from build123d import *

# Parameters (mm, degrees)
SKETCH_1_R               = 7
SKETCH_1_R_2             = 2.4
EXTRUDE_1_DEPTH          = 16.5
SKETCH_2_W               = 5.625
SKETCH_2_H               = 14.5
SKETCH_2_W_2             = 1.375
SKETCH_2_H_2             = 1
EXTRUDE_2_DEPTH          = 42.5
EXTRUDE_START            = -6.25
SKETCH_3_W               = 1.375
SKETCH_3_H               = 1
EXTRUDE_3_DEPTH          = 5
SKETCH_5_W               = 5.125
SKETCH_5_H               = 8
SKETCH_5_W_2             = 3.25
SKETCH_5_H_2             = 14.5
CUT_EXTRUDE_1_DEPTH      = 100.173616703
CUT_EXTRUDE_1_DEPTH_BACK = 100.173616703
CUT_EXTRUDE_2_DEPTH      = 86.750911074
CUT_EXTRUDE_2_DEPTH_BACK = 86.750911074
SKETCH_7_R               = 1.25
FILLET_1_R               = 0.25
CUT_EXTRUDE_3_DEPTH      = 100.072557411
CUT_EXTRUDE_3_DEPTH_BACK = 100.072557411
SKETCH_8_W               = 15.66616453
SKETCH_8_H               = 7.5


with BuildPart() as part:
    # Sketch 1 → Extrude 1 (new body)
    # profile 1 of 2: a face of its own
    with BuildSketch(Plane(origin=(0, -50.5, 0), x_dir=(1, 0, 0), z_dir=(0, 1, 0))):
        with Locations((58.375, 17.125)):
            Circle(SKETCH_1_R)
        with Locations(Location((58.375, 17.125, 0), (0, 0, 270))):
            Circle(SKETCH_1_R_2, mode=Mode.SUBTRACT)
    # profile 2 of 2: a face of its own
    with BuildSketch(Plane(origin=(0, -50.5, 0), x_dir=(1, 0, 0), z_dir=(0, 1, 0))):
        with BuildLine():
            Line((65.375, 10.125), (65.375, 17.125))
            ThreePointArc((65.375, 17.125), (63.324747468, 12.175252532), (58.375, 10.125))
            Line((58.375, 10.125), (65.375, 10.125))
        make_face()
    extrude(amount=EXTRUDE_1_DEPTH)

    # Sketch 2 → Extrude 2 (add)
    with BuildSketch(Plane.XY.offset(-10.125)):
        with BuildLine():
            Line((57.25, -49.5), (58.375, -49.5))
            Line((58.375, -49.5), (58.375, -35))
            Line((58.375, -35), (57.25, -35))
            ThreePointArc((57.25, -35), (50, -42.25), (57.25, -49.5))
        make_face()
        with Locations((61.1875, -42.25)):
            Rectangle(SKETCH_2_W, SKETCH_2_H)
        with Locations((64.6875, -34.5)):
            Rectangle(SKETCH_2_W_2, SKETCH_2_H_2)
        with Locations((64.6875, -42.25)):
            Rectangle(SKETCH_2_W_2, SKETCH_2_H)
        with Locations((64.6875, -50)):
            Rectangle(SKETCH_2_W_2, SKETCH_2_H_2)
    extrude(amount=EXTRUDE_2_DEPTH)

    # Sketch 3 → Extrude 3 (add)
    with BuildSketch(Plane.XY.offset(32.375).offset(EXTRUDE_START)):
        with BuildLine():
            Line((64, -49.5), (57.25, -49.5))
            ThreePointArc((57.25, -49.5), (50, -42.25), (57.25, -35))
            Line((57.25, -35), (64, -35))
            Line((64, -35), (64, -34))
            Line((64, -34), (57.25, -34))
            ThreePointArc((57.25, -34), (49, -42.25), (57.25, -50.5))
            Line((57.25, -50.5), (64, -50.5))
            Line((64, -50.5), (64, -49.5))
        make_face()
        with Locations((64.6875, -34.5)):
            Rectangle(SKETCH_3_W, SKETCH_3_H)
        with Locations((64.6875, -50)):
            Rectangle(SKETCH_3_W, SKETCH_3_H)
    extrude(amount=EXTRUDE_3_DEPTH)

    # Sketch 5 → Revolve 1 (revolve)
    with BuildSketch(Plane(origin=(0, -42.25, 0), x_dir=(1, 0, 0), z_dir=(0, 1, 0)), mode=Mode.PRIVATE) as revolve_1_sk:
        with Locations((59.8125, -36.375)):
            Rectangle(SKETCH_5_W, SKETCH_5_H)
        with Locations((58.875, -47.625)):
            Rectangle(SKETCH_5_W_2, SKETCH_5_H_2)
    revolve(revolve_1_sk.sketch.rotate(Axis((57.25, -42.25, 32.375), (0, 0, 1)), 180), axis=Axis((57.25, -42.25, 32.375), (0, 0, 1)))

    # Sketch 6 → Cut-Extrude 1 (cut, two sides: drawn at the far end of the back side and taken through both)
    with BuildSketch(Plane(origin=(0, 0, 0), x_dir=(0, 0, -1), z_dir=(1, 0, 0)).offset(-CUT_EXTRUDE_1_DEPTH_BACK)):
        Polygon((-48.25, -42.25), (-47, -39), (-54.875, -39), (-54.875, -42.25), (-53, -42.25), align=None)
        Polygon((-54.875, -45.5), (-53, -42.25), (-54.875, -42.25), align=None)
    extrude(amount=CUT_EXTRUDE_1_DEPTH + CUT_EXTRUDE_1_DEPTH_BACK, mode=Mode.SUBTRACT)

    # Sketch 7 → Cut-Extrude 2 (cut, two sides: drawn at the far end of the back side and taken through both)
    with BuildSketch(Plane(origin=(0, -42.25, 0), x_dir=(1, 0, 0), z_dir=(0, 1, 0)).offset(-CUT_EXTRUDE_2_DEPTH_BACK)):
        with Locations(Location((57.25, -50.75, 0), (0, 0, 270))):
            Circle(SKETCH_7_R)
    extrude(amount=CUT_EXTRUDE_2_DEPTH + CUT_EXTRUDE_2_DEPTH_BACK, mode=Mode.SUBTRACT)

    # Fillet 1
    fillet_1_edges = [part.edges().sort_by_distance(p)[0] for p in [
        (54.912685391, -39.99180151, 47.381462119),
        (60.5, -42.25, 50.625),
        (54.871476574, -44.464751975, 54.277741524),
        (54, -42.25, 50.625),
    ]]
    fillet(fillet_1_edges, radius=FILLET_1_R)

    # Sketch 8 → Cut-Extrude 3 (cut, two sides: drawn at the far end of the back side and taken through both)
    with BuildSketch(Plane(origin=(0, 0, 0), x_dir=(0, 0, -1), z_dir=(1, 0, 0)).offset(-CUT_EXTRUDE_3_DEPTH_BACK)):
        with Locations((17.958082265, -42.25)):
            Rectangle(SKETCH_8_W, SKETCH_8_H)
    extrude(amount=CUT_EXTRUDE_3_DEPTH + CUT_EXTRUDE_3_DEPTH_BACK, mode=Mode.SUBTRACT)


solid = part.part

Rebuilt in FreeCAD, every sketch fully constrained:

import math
import FreeCAD as App
import Part
import Sketcher

V = App.Vector


def edges_at(feature, points):
    """Names of the edges that pass closest to the given points."""
    edges = feature.Shape.Edges
    near = lambda p: min(range(len(edges)), key=lambda i: edges[i].distToShape(Part.Vertex(*p))[0])
    return sorted({f"Edge{near(p) + 1}" for p in points})


def add_polygon(sketch, points):
    """Adds a closed chain of lines whose ends are joined by coincident constraints."""
    first, n = sketch.GeometryCount, len(points)
    for a, b in zip(points, points[1:] + points[:1]):
        sketch.addGeometry(Part.LineSegment(App.Vector(*a, 0), App.Vector(*b, 0)), False)
    for i in range(n):
        sketch.addConstraint(Sketcher.Constraint("Coincident", first + i, 2, first + (i + 1) % n, 1))

doc = App.newDocument("Part")
body = doc.addObject("PartDesign::Body", "Body")

# Sketch on XZ plane
sketch1 = body.newObject("Sketcher::SketchObject", "Sketch")
sketch1.AttachmentSupport = (doc.getObject("XZ_Plane"), [""])
sketch1.MapMode = "FlatFace"
sketch1.AttachmentOffset = App.Placement(V(0, 0, 50.5), App.Rotation())
sketch1.addGeometry(Part.ArcOfCircle(Part.Circle(V(58.4, -17.1, 0), V(0, 0, 1), 7), math.radians(90), math.radians(360)), False)
sketch1.addGeometry(Part.LineSegment(V(58.4, -10.1, 0), V(65.4, -10.1, 0)), False)
sketch1.addGeometry(Part.LineSegment(V(65.4, -10.1, 0), V(65.4, -17.1, 0)), False)
sketch1.addGeometry(Part.Circle(V(58.4, -17.1, 0), V(0, 0, 1), 2.4), False)
sketch1.addConstraint(Sketcher.Constraint("Tangent", 0, 1, 1, 1))
sketch1.addConstraint(Sketcher.Constraint("Coincident", 1, 2, 2, 1))
sketch1.addConstraint(Sketcher.Constraint("Tangent", 2, 2, 0, 2))
sketch1.addConstraint(Sketcher.Constraint("Horizontal", 1))
sketch1.addConstraint(Sketcher.Constraint("Vertical", 2))
sketch1.addConstraint(Sketcher.Constraint("Coincident", 3, 3, 0, 3))
sketch1.addConstraint(Sketcher.Constraint("Radius", 0, 7.0))
sketch1.addConstraint(Sketcher.Constraint("Diameter", 3, 4.8))
sketch1.addConstraint(Sketcher.Constraint("DistanceX", -1, 1, 0, 3, 58.375))
sketch1.addConstraint(Sketcher.Constraint("DistanceY", 0, 3, -1, 1, 17.125))
pad1 = body.newObject("PartDesign::Pad", "Pad")
pad1.Profile = sketch1
pad1.Length = 16.5
pad1.Reversed = True

# Sketch on XY plane
sketch2 = body.newObject("Sketcher::SketchObject", "Sketch001")
sketch2.AttachmentSupport = (doc.getObject("XY_Plane"), [""])
sketch2.MapMode = "FlatFace"
sketch2.AttachmentOffset = App.Placement(V(0, 0, -10.125), App.Rotation())
sketch2.addGeometry(Part.LineSegment(V(57.2, -49.5, 0), V(64, -49.5, 0)), False)
sketch2.addGeometry(Part.LineSegment(V(64, -49.5, 0), V(64, -50.5, 0)), False)
sketch2.addGeometry(Part.LineSegment(V(64, -50.5, 0), V(65.4, -50.5, 0)), False)
sketch2.addGeometry(Part.LineSegment(V(65.4, -50.5, 0), V(65.4, -34, 0)), False)
sketch2.addGeometry(Part.LineSegment(V(65.4, -34, 0), V(64, -34, 0)), False)
sketch2.addGeometry(Part.LineSegment(V(64, -34, 0), V(64, -35, 0)), False)
sketch2.addGeometry(Part.LineSegment(V(64, -35, 0), V(57.2, -35, 0)), False)
sketch2.addGeometry(Part.ArcOfCircle(Part.Circle(V(57.2, -42.2, 0), V(0, 0, 1), 7.2), math.radians(90), math.radians(270)), False)
sketch2.addConstraint(Sketcher.Constraint("Coincident", 0, 2, 1, 1))
sketch2.addConstraint(Sketcher.Constraint("Coincident", 1, 2, 2, 1))
sketch2.addConstraint(Sketcher.Constraint("Coincident", 2, 2, 3, 1))
sketch2.addConstraint(Sketcher.Constraint("Coincident", 3, 2, 4, 1))
sketch2.addConstraint(Sketcher.Constraint("Coincident", 4, 2, 5, 1))
sketch2.addConstraint(Sketcher.Constraint("Coincident", 5, 2, 6, 1))
sketch2.addConstraint(Sketcher.Constraint("Tangent", 6, 2, 7, 1))
sketch2.addConstraint(Sketcher.Constraint("Tangent", 7, 2, 0, 1))
sketch2.addConstraint(Sketcher.Constraint("Horizontal", 0))
sketch2.addConstraint(Sketcher.Constraint("Vertical", 1))
sketch2.addConstraint(Sketcher.Constraint("Horizontal", 2))
sketch2.addConstraint(Sketcher.Constraint("Vertical", 3))
sketch2.addConstraint(Sketcher.Constraint("Horizontal", 4))
sketch2.addConstraint(Sketcher.Constraint("Vertical", 5))
sketch2.addConstraint(Sketcher.Constraint("Horizontal", 6))
sketch2.addConstraint(Sketcher.Constraint("Vertical", 1, 2, 4, 2))
sketch2.addConstraint(Sketcher.Constraint("Equal", 1, 5))
sketch2.addConstraint(Sketcher.Constraint("DistanceY", 1, 2, 1, 1, 1.0))
sketch2.addConstraint(Sketcher.Constraint("Radius", 7, 7.25))
sketch2.addConstraint(Sketcher.Constraint("DistanceX", -1, 1, 0, 2, 64.0))
sketch2.addConstraint(Sketcher.Constraint("DistanceY", 3, 2, -1, 1, 34.0))
sketch2.addConstraint(Sketcher.Constraint("DistanceX", 0, 1, 0, 2, 6.75))
sketch2.addConstraint(Sketcher.Constraint("DistanceX", 2, 1, 2, 2, 1.375))
pad2 = body.newObject("PartDesign::Pad", "Pad001")
pad2.Profile = sketch2
pad2.Length = 42.5

# Sketch on XY plane
sketch3 = body.newObject("Sketcher::SketchObject", "Sketch002")
sketch3.AttachmentSupport = (doc.getObject("XY_Plane"), [""])
sketch3.MapMode = "FlatFace"
sketch3.AttachmentOffset = App.Placement(V(0, 0, 26.125), App.Rotation())
sketch3.addGeometry(Part.ArcOfCircle(Part.Circle(V(57.2, -42.2, 0), V(0, 0, 1), 7.2), math.radians(90), math.radians(270)), False)
sketch3.addGeometry(Part.LineSegment(V(57.2, -35, 0), V(65.4, -35, 0)), False)
sketch3.addGeometry(Part.LineSegment(V(65.4, -35, 0), V(65.4, -34, 0)), False)
sketch3.addGeometry(Part.LineSegment(V(65.4, -34, 0), V(57.2, -34, 0)), False)
sketch3.addGeometry(Part.ArcOfCircle(Part.Circle(V(57.2, -42.2, 0), V(0, 0, 1), 8.2), math.radians(90), math.radians(270)), False)
sketch3.addGeometry(Part.LineSegment(V(57.2, -50.5, 0), V(65.4, -50.5, 0)), False)
sketch3.addGeometry(Part.LineSegment(V(65.4, -50.5, 0), V(65.4, -49.5, 0)), False)
sketch3.addGeometry(Part.LineSegment(V(65.4, -49.5, 0), V(57.2, -49.5, 0)), False)
sketch3.addConstraint(Sketcher.Constraint("Tangent", 0, 1, 1, 1))
sketch3.addConstraint(Sketcher.Constraint("Coincident", 1, 2, 2, 1))
sketch3.addConstraint(Sketcher.Constraint("Coincident", 2, 2, 3, 1))
sketch3.addConstraint(Sketcher.Constraint("Tangent", 3, 2, 4, 1))
sketch3.addConstraint(Sketcher.Constraint("Tangent", 4, 2, 5, 1))
sketch3.addConstraint(Sketcher.Constraint("Coincident", 5, 2, 6, 1))
sketch3.addConstraint(Sketcher.Constraint("Coincident", 6, 2, 7, 1))
sketch3.addConstraint(Sketcher.Constraint("Tangent", 7, 2, 0, 2))
sketch3.addConstraint(Sketcher.Constraint("Horizontal", 1))
sketch3.addConstraint(Sketcher.Constraint("Vertical", 2))
sketch3.addConstraint(Sketcher.Constraint("Horizontal", 3))
sketch3.addConstraint(Sketcher.Constraint("Horizontal", 5))
sketch3.addConstraint(Sketcher.Constraint("Vertical", 6))
sketch3.addConstraint(Sketcher.Constraint("Horizontal", 7))
sketch3.addConstraint(Sketcher.Constraint("Coincident", 4, 3, 0, 3))
sketch3.addConstraint(Sketcher.Constraint("Vertical", 2, 2, 5, 2))
sketch3.addConstraint(Sketcher.Constraint("DistanceY", 2, 1, 2, 2, 1.0))
sketch3.addConstraint(Sketcher.Constraint("Radius", 0, 7.25))
sketch3.addConstraint(Sketcher.Constraint("DistanceY", 0, 1, -1, 1, 35.0))
sketch3.addConstraint(Sketcher.Constraint("DistanceX", 1, 1, 1, 2, 8.125))
sketch3.addConstraint(Sketcher.Constraint("DistanceX", -1, 1, 0, 3, 57.25))
pad3 = body.newObject("PartDesign::Pad", "Pad002")
pad3.Profile = sketch3
pad3.Length = 5

# Sketch on XZ plane
sketch4 = body.newObject("Sketcher::SketchObject", "Sketch003")
sketch4.AttachmentSupport = (doc.getObject("XZ_Plane"), [""])
sketch4.MapMode = "FlatFace"
sketch4.AttachmentOffset = App.Placement(V(0, 0, 42.25), App.Rotation())
add_polygon(sketch4, [(57.2, 32.4), (57.2, 54.9), (60.5, 54.9), (60.5, 40.4), (62.4, 40.4), (62.4, 32.4)])  # lines 0-5
sketch4.addGeometry(Part.LineSegment(V(57.2, 32.4, 0), V(57.2, 54.9, 0)), True)  # axis
sketch4.addConstraint(Sketcher.Constraint("Vertical", 0))
sketch4.addConstraint(Sketcher.Constraint("Horizontal", 1))
sketch4.addConstraint(Sketcher.Constraint("Vertical", 2))
sketch4.addConstraint(Sketcher.Constraint("Horizontal", 3))
sketch4.addConstraint(Sketcher.Constraint("Vertical", 4))
sketch4.addConstraint(Sketcher.Constraint("Horizontal", 5))
sketch4.addConstraint(Sketcher.Constraint("Vertical", 6))
sketch4.addConstraint(Sketcher.Constraint("Coincident", 6, 1, 5, 2))
sketch4.addConstraint(Sketcher.Constraint("Horizontal", 1, 2, 6, 2))
sketch4.addConstraint(Sketcher.Constraint("DistanceY", 4, 2, 4, 1, 8.0))
sketch4.addConstraint(Sketcher.Constraint("DistanceY", 0, 1, 0, 2, 22.5))
sketch4.addConstraint(Sketcher.Constraint("DistanceX", 1, 1, 1, 2, 3.25))
sketch4.addConstraint(Sketcher.Constraint("DistanceX", -1, 1, 1, 2, 60.5))
sketch4.addConstraint(Sketcher.Constraint("DistanceX", 3, 1, 3, 2, 1.875))
sketch4.addConstraint(Sketcher.Constraint("DistanceY", -1, 1, 0, 2, 54.875))
revolution = body.newObject("PartDesign::Revolution", "Revolution")
revolution.Profile = sketch4
revolution.ReferenceAxis = (sketch4, ["Axis0"])
revolution.Angle = 360

# Sketch on YZ plane
sketch5 = body.newObject("Sketcher::SketchObject", "Sketch004")
sketch5.AttachmentSupport = (doc.getObject("YZ_Plane"), [""])
sketch5.MapMode = "FlatFace"
add_polygon(sketch5, [(-42.2, 48.2), (-39, 47), (-39, 54.9), (-45.5, 54.9), (-42.2, 53)])  # lines 0-4
sketch5.addConstraint(Sketcher.Constraint("Vertical", 1))
sketch5.addConstraint(Sketcher.Constraint("Horizontal", 2))
sketch5.addConstraint(Sketcher.Constraint("Vertical", 4))
sketch5.addConstraint(Sketcher.Constraint("DistanceX", 2, 2, 2, 1, 6.5))
sketch5.addConstraint(Sketcher.Constraint("DistanceX", 0, 2, -1, 1, 39.0))
sketch5.addConstraint(Sketcher.Constraint("DistanceY", -1, 1, 0, 2, 47.0))
sketch5.addConstraint(Sketcher.Constraint("DistanceY", -1, 1, 3, 2, 53.0))
sketch5.addConstraint(Sketcher.Constraint("DistanceY", 4, 2, 4, 1, 4.75))
sketch5.addConstraint(Sketcher.Constraint("DistanceY", 1, 1, 1, 2, 7.875))
sketch5.addConstraint(Sketcher.Constraint("DistanceX", 3, 2, -1, 1, 42.25))
pocket1 = body.newObject("PartDesign::Pocket", "Pocket")
pocket1.Profile = sketch5
pocket1.Type = "ThroughAll"
pocket1.Midplane = True

# Sketch on XZ plane
sketch6 = body.newObject("Sketcher::SketchObject", "Sketch005")
sketch6.AttachmentSupport = (doc.getObject("XZ_Plane"), [""])
sketch6.MapMode = "FlatFace"
sketch6.AttachmentOffset = App.Placement(V(0, 0, 42.25), App.Rotation())
sketch6.addGeometry(Part.Circle(V(57.2, 50.8, 0), V(0, 0, 1), 1.2), False)
sketch6.addConstraint(Sketcher.Constraint("Diameter", 0, 2.5))
sketch6.addConstraint(Sketcher.Constraint("DistanceX", -1, 1, 0, 3, 57.25))
sketch6.addConstraint(Sketcher.Constraint("DistanceY", -1, 1, 0, 3, 50.75))
pocket2 = body.newObject("PartDesign::Pocket", "Pocket001")
pocket2.Profile = sketch6
pocket2.Type = "ThroughAll"
pocket2.Midplane = True
doc.recompute()

fillet = body.newObject("PartDesign::Fillet", "Fillet")
fillet.Base = (pocket2, edges_at(pocket2, [
    (54.913, -39.992, 47.381),
    (60.5, -42.25, 50.625),
    (54.871, -44.465, 54.278),
    (54, -42.25, 50.625),
]))
fillet.Radius = 0.25

# Sketch on YZ plane
sketch7 = body.newObject("Sketcher::SketchObject", "Sketch006")
sketch7.AttachmentSupport = (doc.getObject("YZ_Plane"), [""])
sketch7.MapMode = "FlatFace"
add_polygon(sketch7, [(-38, -10), (-46, -10), (-46, -26), (-38, -26)])  # lines 0-3
sketch7.addConstraint(Sketcher.Constraint("Horizontal", 0))
sketch7.addConstraint(Sketcher.Constraint("Vertical", 1))
sketch7.addConstraint(Sketcher.Constraint("Horizontal", 2))
sketch7.addConstraint(Sketcher.Constraint("Vertical", 3))
sketch7.addConstraint(Sketcher.Constraint("DistanceX", 0, 2, 0, 1, 7.5))
sketch7.addConstraint(Sketcher.Constraint("DistanceX", 0, 2, -1, 1, 46.0))
sketch7.addConstraint(Sketcher.Constraint("DistanceY", 0, 2, -1, 1, 10.125))
sketch7.addConstraint(Sketcher.Constraint("DistanceY", 1, 2, 1, 1, 15.666165))
pocket3 = body.newObject("PartDesign::Pocket", "Pocket002")
pocket3.Profile = sketch7
pocket3.Type = "ThroughAll"
pocket3.Midplane = True

doc.recompute()
